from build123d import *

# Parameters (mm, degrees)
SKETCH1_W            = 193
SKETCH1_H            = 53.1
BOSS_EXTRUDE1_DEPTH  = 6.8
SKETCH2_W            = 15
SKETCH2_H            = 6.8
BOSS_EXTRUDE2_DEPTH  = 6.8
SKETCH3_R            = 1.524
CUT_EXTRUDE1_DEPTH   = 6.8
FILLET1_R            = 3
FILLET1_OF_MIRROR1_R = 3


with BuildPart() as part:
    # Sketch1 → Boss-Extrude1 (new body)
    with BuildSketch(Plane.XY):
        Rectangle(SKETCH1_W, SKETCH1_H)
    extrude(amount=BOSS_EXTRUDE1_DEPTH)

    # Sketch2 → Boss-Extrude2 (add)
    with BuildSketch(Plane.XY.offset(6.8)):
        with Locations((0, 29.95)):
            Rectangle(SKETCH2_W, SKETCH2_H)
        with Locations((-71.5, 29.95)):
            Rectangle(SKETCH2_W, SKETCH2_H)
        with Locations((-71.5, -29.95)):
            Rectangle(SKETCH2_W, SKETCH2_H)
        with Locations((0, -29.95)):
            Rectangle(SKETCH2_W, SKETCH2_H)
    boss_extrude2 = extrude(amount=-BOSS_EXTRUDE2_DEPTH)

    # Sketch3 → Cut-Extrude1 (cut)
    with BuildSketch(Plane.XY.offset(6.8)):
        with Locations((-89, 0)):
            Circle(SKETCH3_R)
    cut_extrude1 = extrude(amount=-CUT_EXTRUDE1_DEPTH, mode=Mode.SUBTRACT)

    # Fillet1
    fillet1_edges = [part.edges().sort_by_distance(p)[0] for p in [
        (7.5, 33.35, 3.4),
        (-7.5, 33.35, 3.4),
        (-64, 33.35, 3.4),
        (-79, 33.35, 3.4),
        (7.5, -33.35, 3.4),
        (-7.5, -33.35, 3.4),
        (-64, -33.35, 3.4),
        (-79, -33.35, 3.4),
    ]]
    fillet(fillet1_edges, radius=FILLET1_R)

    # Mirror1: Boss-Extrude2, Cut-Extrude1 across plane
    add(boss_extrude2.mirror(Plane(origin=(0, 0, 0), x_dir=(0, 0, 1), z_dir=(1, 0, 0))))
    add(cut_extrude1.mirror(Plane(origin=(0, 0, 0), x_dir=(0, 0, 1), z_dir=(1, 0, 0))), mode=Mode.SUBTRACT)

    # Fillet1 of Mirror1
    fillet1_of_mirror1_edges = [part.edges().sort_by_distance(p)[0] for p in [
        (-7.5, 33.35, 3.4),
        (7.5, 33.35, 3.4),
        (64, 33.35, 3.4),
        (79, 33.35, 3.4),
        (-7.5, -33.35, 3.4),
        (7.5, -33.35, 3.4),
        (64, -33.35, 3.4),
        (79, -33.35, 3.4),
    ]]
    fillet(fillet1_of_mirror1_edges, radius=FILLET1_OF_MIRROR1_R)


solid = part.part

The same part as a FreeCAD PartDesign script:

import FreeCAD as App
import Part
import Sketcher
from FreeCAD import Vector
Q = App.Units.Quantity


def edges_at(feature, points):
    """Names of the edges that pass closest to the given points."""
    edges = feature.Shape.Edges
    near = lambda p: min(range(len(edges)), key=lambda i: edges[i].distToShape(Part.Vertex(*p))[0])
    return sorted({f"Edge{near(p) + 1}" for p in points})


def add_polygon(sketch, points):
    """Adds a closed chain of lines whose ends are joined by coincident constraints."""
    first, n = sketch.GeometryCount, len(points)
    for a, b in zip(points, points[1:] + points[:1]):
        sketch.addGeometry(Part.LineSegment(App.Vector(*a, 0), App.Vector(*b, 0)), False)
    for i in range(n):
        sketch.addConstraint(Sketcher.Constraint("Coincident", first + i, 2, first + (i + 1) % n, 1))

doc = App.newDocument("Part")
body = doc.addObject("PartDesign::Body", "Body")

sketch1 = body.newObject("Sketcher::SketchObject", "Sketch")
sketch1.AttachmentSupport = (doc.getObject("XY_Plane"), [""])
sketch1.MapMode = "FlatFace"
add_polygon(sketch1, [(-96, 27), (-96, -27), (96, -27), (96, 27)])
sketch1.addConstraint(Sketcher.Constraint("Vertical", 0))
sketch1.addConstraint(Sketcher.Constraint("Horizontal", 1))
sketch1.addConstraint(Sketcher.Constraint("Vertical", 2))
sketch1.addConstraint(Sketcher.Constraint("Horizontal", 3))
sketch1.addConstraint(Sketcher.Constraint("Symmetric", 0, 2, 2, 2, -1, 1))
sketch1.addConstraint(Sketcher.Constraint("DistanceX", 1, 1, 1, 2, Q("193 mm")))
sketch1.addConstraint(Sketcher.Constraint("DistanceY", 0, 2, 0, 1, Q("53.1 mm")))
pad1 = body.newObject("PartDesign::Pad", "Pad")
pad1.Profile = sketch1
pad1.Length = 6.8

sketch2 = body.newObject("Sketcher::SketchObject", "Sketch001")
sketch2.AttachmentSupport = (doc.getObject("XY_Plane"), [""])
sketch2.MapMode = "FlatFace"
sketch2.AttachmentOffset = App.Placement(Vector(0, 0, 6.8), App.Rotation())
add_polygon(sketch2, [(-8, 33), (-8, 27), (8, 27), (8, 33)])
add_polygon(sketch2, [(-79, 33), (-79, 27), (-64, 27), (-64, 33)])
add_polygon(sketch2, [(-79, -27), (-79, -33), (-64, -33), (-64, -27)])
add_polygon(sketch2, [(-8, -27), (-8, -33), (8, -33), (8, -27)])
sketch2.addConstraint(Sketcher.Constraint("Vertical", 0))
sketch2.addConstraint(Sketcher.Constraint("Horizontal", 1))
sketch2.addConstraint(Sketcher.Constraint("Vertical", 2))
sketch2.addConstraint(Sketcher.Constraint("Horizontal", 3))
sketch2.addConstraint(Sketcher.Constraint("Vertical", 4))
sketch2.addConstraint(Sketcher.Constraint("Horizontal", 5))
sketch2.addConstraint(Sketcher.Constraint("Vertical", 6))
sketch2.addConstraint(Sketcher.Constraint("Horizontal", 7))
sketch2.addConstraint(Sketcher.Constraint("Vertical", 8))
sketch2.addConstraint(Sketcher.Constraint("Horizontal", 9))
sketch2.addConstraint(Sketcher.Constraint("Vertical", 10))
sketch2.addConstraint(Sketcher.Constraint("Horizontal", 11))
sketch2.addConstraint(Sketcher.Constraint("Vertical", 12))
sketch2.addConstraint(Sketcher.Constraint("Horizontal", 13))
sketch2.addConstraint(Sketcher.Constraint("Vertical", 14))
sketch2.addConstraint(Sketcher.Constraint("Horizontal", 15))
sketch2.addConstraint(Sketcher.Constraint("Symmetric", 2, 2, 12, 2, -1, 1))
sketch2.addConstraint(Sketcher.Constraint("Symmetric", 0, 2, 14, 2, -1, 1))
sketch2.addConstraint(Sketcher.Constraint("Symmetric", 7, 2, 8, 2, -1))
sketch2.addConstraint(Sketcher.Constraint("Symmetric", 5, 2, 10, 2, -1))
sketch2.addConstraint(Sketcher.Constraint("Horizontal", 1, 2, 4, 2))
sketch2.addConstraint(Sketcher.Constraint("Horizontal", 3, 2, 6, 2))
sketch2.addConstraint(Sketcher.Constraint("Vertical", 3, 2, 12, 2))
sketch2.addConstraint(Sketcher.Constraint("Equal", 3, 5))
sketch2.addConstraint(Sketcher.Constraint("DistanceX", 1, 1, 1, 2, Q("15 mm")))
sketch2.addConstraint(Sketcher.Constraint("DistanceY", 0, 2, 0, 1, Q("6.8 mm")))
sketch2.addConstraint(Sketcher.Constraint("DistanceX", 4, 2, -1, 1, Q("79 mm")))
sketch2.addConstraint(Sketcher.Constraint("DistanceY", 8, 2, 4, 2, Q("59.9 mm")))
pad2 = body.newObject("PartDesign::Pad", "Pad001")
pad2.Profile = sketch2
pad2.Length = 6.8
pad2.Reversed = True

sketch3 = body.newObject("Sketcher::SketchObject", "Sketch002")
sketch3.AttachmentSupport = (doc.getObject("XY_Plane"), [""])
sketch3.MapMode = "FlatFace"
sketch3.AttachmentOffset = App.Placement(Vector(0, 0, 6.8), App.Rotation())
sketch3.addGeometry(Part.Circle(Vector(-89, 0, 0), Vector(0, 0, 1), 1.5), False)
sketch3.addConstraint(Sketcher.Constraint("PointOnObject", 0, 3, -1))
sketch3.addConstraint(Sketcher.Constraint("Diameter", 0, Q("3.048 mm")))
sketch3.addConstraint(Sketcher.Constraint("DistanceX", 0, 3, -1, 1, Q("89 mm")))
pocket1 = body.newObject("PartDesign::Pocket", "Pocket")
pocket1.Profile = sketch3
pocket1.Length = 6.8
doc.recompute()

fillet = body.newObject("PartDesign::Fillet", "Fillet")
fillet.Base = (pocket1, edges_at(pocket1, [
    (7.5, 33.35, 3.4),
    (-7.5, 33.35, 3.4),
    (-64, 33.35, 3.4),
    (-79, 33.35, 3.4),
    (7.5, -33.35, 3.4),
    (-7.5, -33.35, 3.4),
    (-64, -33.35, 3.4),
    (-79, -33.35, 3.4),
]))
fillet.Radius = 3
doc.recompute()

mirrored = body.newObject("PartDesign::Mirrored", "Mirrored")
mirrored.Originals = [pad2, pocket1]
mirrored.MirrorPlane = (doc.getObject("YZ_Plane"), [""])
body.Tip = mirrored
doc.recompute()

fillet2 = body.newObject("PartDesign::Fillet", "Fillet001")
fillet2.Base = (mirrored, edges_at(mirrored, [
    (-7.5, 33.35, 3.4),
    (7.5, 33.35, 3.4),
    (64, 33.35, 3.4),
    (79, 33.35, 3.4),
    (-7.5, -33.35, 3.4),
    (7.5, -33.35, 3.4),
    (64, -33.35, 3.4),
    (79, -33.35, 3.4),
]))
fillet2.Radius = 3

doc.recompute()
